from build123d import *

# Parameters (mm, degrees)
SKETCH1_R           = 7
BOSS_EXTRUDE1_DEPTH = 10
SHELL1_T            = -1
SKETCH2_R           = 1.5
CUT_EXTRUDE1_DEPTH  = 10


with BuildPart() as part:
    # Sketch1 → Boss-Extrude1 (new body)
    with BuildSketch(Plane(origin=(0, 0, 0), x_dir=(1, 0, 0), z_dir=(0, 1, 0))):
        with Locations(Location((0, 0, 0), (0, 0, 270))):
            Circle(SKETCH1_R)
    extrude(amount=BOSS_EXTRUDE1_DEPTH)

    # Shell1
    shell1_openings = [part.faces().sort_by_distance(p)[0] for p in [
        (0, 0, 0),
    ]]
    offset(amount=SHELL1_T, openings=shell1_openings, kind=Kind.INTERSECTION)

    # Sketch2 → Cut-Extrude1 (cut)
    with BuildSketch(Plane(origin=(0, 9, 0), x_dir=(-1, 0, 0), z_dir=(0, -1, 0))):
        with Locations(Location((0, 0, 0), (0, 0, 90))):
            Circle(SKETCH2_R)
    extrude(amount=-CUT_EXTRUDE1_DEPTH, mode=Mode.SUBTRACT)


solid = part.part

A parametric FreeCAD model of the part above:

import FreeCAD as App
import Part
import Sketcher
from FreeCAD import Vector


def faces_at(feature, points):
    """Names of the faces that lie closest to the given points."""
    faces = feature.Shape.Faces
    near = lambda p: min(range(len(faces)), key=lambda i: faces[i].distToShape(Part.Vertex(*p))[0])
    return sorted({f"Face{near(p) + 1}" for p in points})

doc = App.newDocument("Part")
body = doc.addObject("PartDesign::Body", "Body")

# Sketch on XZ plane
sketch1 = body.newObject("Sketcher::SketchObject", "Sketch")
sketch1.AttachmentSupport = (doc.getObject("XZ_Plane"), [""])
sketch1.MapMode = "FlatFace"
sketch1.addGeometry(Part.Circle(Vector(0, 0, 0), Vector(0, 0, 1), 7), False)
sketch1.addConstraint(Sketcher.Constraint("Coincident", 0, 3, -1, 1))
sketch1.addConstraint(Sketcher.Constraint("Diameter", 0, 14.0))
pad1 = body.newObject("PartDesign::Pad", "Pad")
pad1.Profile = sketch1
pad1.Length = 10
pad1.Reversed = True
doc.recompute()

thickness = body.newObject("PartDesign::Thickness", "Thickness")
thickness.Base = (pad1, faces_at(pad1, [(0, 0, 0)]))
thickness.Value = 1
thickness.Reversed = True
thickness.Join = "Intersection"

# Sketch on XZ plane
sketch2 = body.newObject("Sketcher::SketchObject", "Sketch001")
sketch2.AttachmentSupport = (doc.getObject("XZ_Plane"), [""])
sketch2.MapMode = "FlatFace"
sketch2.AttachmentOffset = App.Placement(Vector(0, 0, -9), App.Rotation())
sketch2.addGeometry(Part.Circle(Vector(0, 0, 0), Vector(0, 0, 1), 1.5), False)
sketch2.addConstraint(Sketcher.Constraint("Coincident", 0, 3, -1, 1))
sketch2.addConstraint(Sketcher.Constraint("Diameter", 0, 3.0))
pocket1 = body.newObject("PartDesign::Pocket", "Pocket")
pocket1.Profile = sketch2
pocket1.Length = 10

doc.recompute()
